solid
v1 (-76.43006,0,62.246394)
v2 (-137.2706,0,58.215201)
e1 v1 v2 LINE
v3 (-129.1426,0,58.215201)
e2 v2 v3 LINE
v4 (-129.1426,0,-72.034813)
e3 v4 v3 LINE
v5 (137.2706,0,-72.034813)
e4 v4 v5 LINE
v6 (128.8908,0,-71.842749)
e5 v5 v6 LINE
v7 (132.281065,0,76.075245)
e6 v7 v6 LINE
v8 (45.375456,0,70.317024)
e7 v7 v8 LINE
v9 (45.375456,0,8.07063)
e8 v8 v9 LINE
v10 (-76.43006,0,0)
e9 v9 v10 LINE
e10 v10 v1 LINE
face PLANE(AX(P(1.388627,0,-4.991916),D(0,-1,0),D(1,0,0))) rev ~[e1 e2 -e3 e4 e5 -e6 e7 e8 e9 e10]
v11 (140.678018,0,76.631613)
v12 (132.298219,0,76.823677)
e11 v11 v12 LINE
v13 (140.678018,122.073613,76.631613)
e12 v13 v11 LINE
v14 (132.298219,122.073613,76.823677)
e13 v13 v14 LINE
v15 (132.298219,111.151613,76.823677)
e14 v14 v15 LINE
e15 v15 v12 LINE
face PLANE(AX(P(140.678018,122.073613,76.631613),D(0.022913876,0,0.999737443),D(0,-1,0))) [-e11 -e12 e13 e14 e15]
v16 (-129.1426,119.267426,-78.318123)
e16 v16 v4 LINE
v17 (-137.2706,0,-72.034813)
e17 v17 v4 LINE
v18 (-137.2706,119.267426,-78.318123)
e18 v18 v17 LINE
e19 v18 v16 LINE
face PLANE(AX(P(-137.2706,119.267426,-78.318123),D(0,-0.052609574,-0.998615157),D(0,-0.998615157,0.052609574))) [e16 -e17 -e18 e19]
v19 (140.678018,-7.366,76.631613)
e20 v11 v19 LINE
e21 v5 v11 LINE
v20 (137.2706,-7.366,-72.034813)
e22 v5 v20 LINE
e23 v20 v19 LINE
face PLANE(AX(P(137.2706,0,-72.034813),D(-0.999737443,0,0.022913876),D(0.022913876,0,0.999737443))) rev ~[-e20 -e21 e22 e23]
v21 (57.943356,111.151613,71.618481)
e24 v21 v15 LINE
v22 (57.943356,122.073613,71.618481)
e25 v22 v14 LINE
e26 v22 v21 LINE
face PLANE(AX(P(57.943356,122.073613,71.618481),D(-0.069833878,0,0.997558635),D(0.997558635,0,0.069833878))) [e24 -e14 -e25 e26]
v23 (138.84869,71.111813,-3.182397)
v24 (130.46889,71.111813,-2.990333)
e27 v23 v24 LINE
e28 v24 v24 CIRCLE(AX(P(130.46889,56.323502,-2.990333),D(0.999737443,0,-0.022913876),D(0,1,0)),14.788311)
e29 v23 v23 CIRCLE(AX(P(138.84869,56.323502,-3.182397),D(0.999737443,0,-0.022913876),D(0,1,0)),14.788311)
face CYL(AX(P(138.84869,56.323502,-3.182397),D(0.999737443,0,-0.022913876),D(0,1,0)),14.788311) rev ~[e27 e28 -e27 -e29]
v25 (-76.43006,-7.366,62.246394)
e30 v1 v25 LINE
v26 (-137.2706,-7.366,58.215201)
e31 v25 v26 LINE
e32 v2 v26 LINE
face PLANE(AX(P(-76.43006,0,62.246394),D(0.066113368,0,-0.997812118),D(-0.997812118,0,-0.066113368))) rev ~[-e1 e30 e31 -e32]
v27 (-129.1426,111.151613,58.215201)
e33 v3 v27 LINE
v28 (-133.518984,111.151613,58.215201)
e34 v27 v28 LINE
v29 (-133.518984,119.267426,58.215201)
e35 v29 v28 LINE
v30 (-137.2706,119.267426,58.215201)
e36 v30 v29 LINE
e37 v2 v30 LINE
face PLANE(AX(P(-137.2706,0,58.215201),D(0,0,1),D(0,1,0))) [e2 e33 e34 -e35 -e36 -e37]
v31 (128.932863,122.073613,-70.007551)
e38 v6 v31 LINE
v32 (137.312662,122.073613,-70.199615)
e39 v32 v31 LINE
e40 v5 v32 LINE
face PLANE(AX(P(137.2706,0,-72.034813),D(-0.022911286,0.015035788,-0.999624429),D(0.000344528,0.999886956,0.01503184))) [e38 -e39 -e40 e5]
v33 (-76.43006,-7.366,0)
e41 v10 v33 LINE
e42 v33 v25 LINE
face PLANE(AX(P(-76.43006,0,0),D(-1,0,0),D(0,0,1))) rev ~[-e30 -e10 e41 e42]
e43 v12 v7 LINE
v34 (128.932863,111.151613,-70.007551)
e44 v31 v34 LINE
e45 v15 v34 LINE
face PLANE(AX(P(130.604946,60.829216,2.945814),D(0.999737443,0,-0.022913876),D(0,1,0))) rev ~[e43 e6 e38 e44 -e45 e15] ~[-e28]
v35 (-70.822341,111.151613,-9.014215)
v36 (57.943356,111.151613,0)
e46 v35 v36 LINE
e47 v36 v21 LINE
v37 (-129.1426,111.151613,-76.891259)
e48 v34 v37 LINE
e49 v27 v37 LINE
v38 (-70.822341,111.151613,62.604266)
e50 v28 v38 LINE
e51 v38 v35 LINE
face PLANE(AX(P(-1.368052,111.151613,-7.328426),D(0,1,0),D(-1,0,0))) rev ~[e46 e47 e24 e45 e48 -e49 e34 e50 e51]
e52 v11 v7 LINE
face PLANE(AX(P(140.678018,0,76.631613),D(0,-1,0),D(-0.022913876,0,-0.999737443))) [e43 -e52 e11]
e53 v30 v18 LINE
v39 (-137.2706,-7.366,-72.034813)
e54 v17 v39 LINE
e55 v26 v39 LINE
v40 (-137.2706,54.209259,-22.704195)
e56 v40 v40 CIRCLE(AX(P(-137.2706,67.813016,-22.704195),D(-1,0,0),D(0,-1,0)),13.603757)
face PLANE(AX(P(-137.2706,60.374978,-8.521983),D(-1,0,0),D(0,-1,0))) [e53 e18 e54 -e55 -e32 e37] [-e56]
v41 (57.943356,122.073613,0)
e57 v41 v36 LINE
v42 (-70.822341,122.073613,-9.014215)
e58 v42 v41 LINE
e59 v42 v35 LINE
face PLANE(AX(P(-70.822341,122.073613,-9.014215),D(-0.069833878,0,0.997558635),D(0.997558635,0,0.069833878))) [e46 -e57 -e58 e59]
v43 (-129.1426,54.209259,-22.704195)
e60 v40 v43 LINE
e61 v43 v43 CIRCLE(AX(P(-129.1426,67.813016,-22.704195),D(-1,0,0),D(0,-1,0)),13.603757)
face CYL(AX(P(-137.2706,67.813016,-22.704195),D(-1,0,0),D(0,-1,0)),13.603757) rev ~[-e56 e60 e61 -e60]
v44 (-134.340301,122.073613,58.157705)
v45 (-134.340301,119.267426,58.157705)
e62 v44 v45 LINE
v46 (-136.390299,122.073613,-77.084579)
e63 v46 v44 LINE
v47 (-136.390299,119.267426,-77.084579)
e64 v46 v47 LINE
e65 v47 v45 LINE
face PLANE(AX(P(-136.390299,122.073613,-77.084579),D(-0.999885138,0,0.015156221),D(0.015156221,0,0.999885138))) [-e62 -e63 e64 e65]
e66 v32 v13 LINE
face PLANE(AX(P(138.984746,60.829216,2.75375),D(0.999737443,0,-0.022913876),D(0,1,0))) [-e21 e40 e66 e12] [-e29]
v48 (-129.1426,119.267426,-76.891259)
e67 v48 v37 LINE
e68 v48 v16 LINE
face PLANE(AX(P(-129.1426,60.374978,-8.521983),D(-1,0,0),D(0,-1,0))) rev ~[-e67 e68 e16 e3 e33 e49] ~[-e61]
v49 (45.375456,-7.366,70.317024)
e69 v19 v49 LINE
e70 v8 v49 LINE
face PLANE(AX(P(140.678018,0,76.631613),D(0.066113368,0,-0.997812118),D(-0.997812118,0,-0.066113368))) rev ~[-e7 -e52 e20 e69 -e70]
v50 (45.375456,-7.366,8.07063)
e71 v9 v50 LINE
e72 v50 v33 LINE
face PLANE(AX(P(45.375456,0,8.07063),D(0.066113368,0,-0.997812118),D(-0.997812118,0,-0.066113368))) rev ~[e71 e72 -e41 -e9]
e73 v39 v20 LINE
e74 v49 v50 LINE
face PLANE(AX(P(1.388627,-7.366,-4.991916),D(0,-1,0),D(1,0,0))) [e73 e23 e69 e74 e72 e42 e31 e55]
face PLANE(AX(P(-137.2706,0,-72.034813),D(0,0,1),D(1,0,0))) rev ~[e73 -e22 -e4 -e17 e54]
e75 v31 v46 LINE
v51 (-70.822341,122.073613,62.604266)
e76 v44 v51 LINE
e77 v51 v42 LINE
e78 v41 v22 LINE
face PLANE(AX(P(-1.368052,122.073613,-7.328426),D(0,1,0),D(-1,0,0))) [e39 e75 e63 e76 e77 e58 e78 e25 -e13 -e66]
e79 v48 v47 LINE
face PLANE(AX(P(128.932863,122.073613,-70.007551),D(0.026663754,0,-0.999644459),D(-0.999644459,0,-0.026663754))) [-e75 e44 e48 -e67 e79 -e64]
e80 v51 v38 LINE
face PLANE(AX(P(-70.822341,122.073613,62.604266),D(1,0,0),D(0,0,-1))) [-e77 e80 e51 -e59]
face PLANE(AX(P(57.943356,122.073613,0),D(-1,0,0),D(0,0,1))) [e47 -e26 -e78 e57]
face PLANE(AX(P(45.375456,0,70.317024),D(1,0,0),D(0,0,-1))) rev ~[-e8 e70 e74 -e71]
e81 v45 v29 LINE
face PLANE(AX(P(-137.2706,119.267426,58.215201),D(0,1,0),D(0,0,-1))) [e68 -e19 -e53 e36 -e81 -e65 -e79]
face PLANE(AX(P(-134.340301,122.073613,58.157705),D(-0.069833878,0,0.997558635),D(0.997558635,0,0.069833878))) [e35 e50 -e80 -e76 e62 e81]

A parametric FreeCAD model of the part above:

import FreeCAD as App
import Part
import Sketcher
from FreeCAD import Vector
Q = App.Units.Quantity


def add_polygon(sketch, points):
    """Adds a closed chain of lines whose ends are joined by coincident constraints."""
    first, n = sketch.GeometryCount, len(points)
    for a, b in zip(points, points[1:] + points[:1]):
        sketch.addGeometry(Part.LineSegment(App.Vector(*a, 0), App.Vector(*b, 0)), False)
    for i in range(n):
        sketch.addConstraint(Sketcher.Constraint("Coincident", first + i, 2, first + (i + 1) % n, 1))

doc = App.newDocument("Part")
body = doc.addObject("PartDesign::Body", "Body")

sketch1 = body.newObject("Sketcher::SketchObject", "Sketch")
sketch1.AttachmentSupport = (doc.getObject("XZ_Plane"), [""])
sketch1.MapMode = "FlatFace"
add_polygon(sketch1, [(-76, 62), (-137, 58), (-137, -72), (137, -72), (141, 77), (45, 70), (45, 8), (-76, 0)])
sketch1.addConstraint(Sketcher.Constraint("Vertical", 1))
sketch1.addConstraint(Sketcher.Constraint("Horizontal", 2))
sketch1.addConstraint(Sketcher.Constraint("Vertical", 5))
sketch1.addConstraint(Sketcher.Constraint("Vertical", 7))
sketch1.addConstraint(Sketcher.Constraint("PointOnObject", 6, 2, -1))
sketch1.addConstraint(Sketcher.Constraint("Parallel", 0, 4))
sketch1.addConstraint(Sketcher.Constraint("Parallel", 4, 6))
sketch1.addConstraint(Sketcher.Constraint("Equal", 5, 7))
sketch1.addConstraint(Sketcher.Constraint("DistanceX", 2, 1, 2, 2, 274.541199))
sketch1.addConstraint(Sketcher.Constraint("DistanceX", 0, 2, -1, 1, 137.2706))
sketch1.addConstraint(Sketcher.Constraint("DistanceY", -1, 1, 0, 2, 58.215201))
sketch1.addConstraint(Sketcher.Constraint("Distance", 3, 148.70547))
sketch1.addConstraint(Sketcher.Constraint("Distance", 4, 95.511531))
sketch1.addConstraint(Sketcher.Constraint("DistanceY", 1, 2, 1, 1, 130.250014))
sketch1.addConstraint(Sketcher.Constraint("DistanceY", 5, 2, 5, 1, 62.246394))
sketch1.addConstraint(Sketcher.Constraint("DistanceX", -1, 1, 3, 2, 140.678018))
pad1 = body.newObject("PartDesign::Pad", "Pad")
pad1.Profile = sketch1
pad1.Length = Q("0.29 in")

sketch2 = body.newObject("Sketcher::SketchObject", "Sketch001")
sketch2.Placement = App.Placement(Vector(138.84869, 0, -3.182397), App.Rotation(Vector(0, 1, 0), Vector(0.022913876, 0, 0.999737443), Vector(0.999737443, 0, -0.022913876), "ZXY"))
add_polygon(sketch2, [(122, 80), (0, 80), (0, -69), (122, -67)])
sketch2.addGeometry(Part.Circle(Vector(56, 0, 0), Vector(0, 0, 1), 15), False)
sketch2.addConstraint(Sketcher.Constraint("Horizontal", 0))
sketch2.addConstraint(Sketcher.Constraint("Vertical", 1))
sketch2.addConstraint(Sketcher.Constraint("Vertical", 3))
sketch2.addConstraint(Sketcher.Constraint("PointOnObject", 4, 3, -1))
sketch2.addConstraint(Sketcher.Constraint("PointOnObject", 0, 2, -2))
sketch2.addConstraint(Sketcher.Constraint("Diameter", 4, 29.576622))
sketch2.addConstraint(Sketcher.Constraint("DistanceY", 1, 2, 1, 1, 148.70547))
sketch2.addConstraint(Sketcher.Constraint("DistanceY", 3, 1, 3, 2, 146.86979))
sketch2.addConstraint(Sketcher.Constraint("DistanceY", 1, 2, -1, 1, 68.870499))
sketch2.addConstraint(Sketcher.Constraint("DistanceX", 0, 2, 0, 1, 122.073613))
sketch2.addConstraint(Sketcher.Constraint("DistanceX", 4, 3, 2, 2, 65.750111))
pad2 = body.newObject("PartDesign::Pad", "Pad001")
pad2.Profile = sketch2
pad2.Length = Q("0.33 in")
pad2.Reversed = True

sketch3 = body.newObject("Sketcher::SketchObject", "Sketch002")
sketch3.AttachmentSupport = (doc.getObject("YZ_Plane"), [""])
sketch3.MapMode = "FlatFace"
sketch3.AttachmentOffset = App.Placement(Vector(0, 0, -137.2706), App.Rotation())
add_polygon(sketch3, [(0, -72), (0, 58), (119, 58), (119, -78)])
sketch3.addGeometry(Part.Circle(Vector(68, -23, 0), Vector(0, 0, 1), 14), False)
sketch3.addConstraint(Sketcher.Constraint("Vertical", 0))
sketch3.addConstraint(Sketcher.Constraint("Horizontal", 1))
sketch3.addConstraint(Sketcher.Constraint("Vertical", 2))
sketch3.addConstraint(Sketcher.Constraint("PointOnObject", 0, 2, -2))
sketch3.addConstraint(Sketcher.Constraint("Diameter", 4, 27.207514))
sketch3.addConstraint(Sketcher.Constraint("DistanceY", -1, 1, 0, 2, 58.215201))
sketch3.addConstraint(Sketcher.Constraint("DistanceX", 1, 1, 1, 2, 119.267426))
sketch3.addConstraint(Sketcher.Constraint("DistanceY", 0, 1, 0, 2, 130.250014))
sketch3.addConstraint(Sketcher.Constraint("DistanceY", 2, 2, 2, 1, 136.533324))
sketch3.addConstraint(Sketcher.Constraint("DistanceX", 4, 3, 1, 2, 51.45441))
sketch3.addConstraint(Sketcher.Constraint("DistanceY", 2, 2, 4, 3, 55.613928))
pad3 = body.newObject("PartDesign::Pad", "Pad002")
pad3.Profile = sketch3
pad3.Length = Q("0.32 in")

sketch4 = body.newObject("Sketcher::SketchObject", "Sketch003")
sketch4.AttachmentSupport = (doc.getObject("XZ_Plane"), [""])
sketch4.MapMode = "FlatFace"
sketch4.AttachmentOffset = App.Placement(Vector(0, 0, -122.073613), App.Rotation())
add_polygon(sketch4, [(132, 77), (129, -70), (-136, -77), (-134, 58), (-71, 63), (-71, -9), (58, 0), (58, 72)])
sketch4.addConstraint(Sketcher.Constraint("Vertical", 4))
sketch4.addConstraint(Sketcher.Constraint("Vertical", 6))
sketch4.addConstraint(Sketcher.Constraint("PointOnObject", 5, 2, -1))
sketch4.addConstraint(Sketcher.Constraint("Parallel", 3, 5))
sketch4.addConstraint(Sketcher.Constraint("Parallel", 5, 7))
sketch4.addConstraint(Sketcher.Constraint("Equal", 4, 6))
sketch4.addConstraint(Sketcher.Constraint("DistanceY", 4, 2, 4, 1, 71.618481))
sketch4.addConstraint(Sketcher.Constraint("DistanceX", 1, 2, -1, 1, 136.390299))
sketch4.addConstraint(Sketcher.Constraint("DistanceX", 2, 2, -1, 1, 134.340301))
sketch4.addConstraint(Sketcher.Constraint("Distance", 0, 146.86979))
sketch4.addConstraint(Sketcher.Constraint("Distance", 1, 265.417528))
sketch4.addConstraint(Sketcher.Constraint("Distance", 2, 135.257819))
sketch4.addConstraint(Sketcher.Constraint("Distance", 3, 63.67341))
sketch4.addConstraint(Sketcher.Constraint("Distance", 5, 129.08083))
sketch4.addConstraint(Sketcher.Constraint("DistanceY", 0, 2, -1, 1, 70.007551))
sketch4.addConstraint(Sketcher.Constraint("DistanceY", 1, 2, -1, 1, 77.084579))
pad4 = body.newObject("PartDesign::Pad", "Pad003")
pad4.Profile = sketch4
pad4.Length = Q("0.43 in")

doc.recompute()
